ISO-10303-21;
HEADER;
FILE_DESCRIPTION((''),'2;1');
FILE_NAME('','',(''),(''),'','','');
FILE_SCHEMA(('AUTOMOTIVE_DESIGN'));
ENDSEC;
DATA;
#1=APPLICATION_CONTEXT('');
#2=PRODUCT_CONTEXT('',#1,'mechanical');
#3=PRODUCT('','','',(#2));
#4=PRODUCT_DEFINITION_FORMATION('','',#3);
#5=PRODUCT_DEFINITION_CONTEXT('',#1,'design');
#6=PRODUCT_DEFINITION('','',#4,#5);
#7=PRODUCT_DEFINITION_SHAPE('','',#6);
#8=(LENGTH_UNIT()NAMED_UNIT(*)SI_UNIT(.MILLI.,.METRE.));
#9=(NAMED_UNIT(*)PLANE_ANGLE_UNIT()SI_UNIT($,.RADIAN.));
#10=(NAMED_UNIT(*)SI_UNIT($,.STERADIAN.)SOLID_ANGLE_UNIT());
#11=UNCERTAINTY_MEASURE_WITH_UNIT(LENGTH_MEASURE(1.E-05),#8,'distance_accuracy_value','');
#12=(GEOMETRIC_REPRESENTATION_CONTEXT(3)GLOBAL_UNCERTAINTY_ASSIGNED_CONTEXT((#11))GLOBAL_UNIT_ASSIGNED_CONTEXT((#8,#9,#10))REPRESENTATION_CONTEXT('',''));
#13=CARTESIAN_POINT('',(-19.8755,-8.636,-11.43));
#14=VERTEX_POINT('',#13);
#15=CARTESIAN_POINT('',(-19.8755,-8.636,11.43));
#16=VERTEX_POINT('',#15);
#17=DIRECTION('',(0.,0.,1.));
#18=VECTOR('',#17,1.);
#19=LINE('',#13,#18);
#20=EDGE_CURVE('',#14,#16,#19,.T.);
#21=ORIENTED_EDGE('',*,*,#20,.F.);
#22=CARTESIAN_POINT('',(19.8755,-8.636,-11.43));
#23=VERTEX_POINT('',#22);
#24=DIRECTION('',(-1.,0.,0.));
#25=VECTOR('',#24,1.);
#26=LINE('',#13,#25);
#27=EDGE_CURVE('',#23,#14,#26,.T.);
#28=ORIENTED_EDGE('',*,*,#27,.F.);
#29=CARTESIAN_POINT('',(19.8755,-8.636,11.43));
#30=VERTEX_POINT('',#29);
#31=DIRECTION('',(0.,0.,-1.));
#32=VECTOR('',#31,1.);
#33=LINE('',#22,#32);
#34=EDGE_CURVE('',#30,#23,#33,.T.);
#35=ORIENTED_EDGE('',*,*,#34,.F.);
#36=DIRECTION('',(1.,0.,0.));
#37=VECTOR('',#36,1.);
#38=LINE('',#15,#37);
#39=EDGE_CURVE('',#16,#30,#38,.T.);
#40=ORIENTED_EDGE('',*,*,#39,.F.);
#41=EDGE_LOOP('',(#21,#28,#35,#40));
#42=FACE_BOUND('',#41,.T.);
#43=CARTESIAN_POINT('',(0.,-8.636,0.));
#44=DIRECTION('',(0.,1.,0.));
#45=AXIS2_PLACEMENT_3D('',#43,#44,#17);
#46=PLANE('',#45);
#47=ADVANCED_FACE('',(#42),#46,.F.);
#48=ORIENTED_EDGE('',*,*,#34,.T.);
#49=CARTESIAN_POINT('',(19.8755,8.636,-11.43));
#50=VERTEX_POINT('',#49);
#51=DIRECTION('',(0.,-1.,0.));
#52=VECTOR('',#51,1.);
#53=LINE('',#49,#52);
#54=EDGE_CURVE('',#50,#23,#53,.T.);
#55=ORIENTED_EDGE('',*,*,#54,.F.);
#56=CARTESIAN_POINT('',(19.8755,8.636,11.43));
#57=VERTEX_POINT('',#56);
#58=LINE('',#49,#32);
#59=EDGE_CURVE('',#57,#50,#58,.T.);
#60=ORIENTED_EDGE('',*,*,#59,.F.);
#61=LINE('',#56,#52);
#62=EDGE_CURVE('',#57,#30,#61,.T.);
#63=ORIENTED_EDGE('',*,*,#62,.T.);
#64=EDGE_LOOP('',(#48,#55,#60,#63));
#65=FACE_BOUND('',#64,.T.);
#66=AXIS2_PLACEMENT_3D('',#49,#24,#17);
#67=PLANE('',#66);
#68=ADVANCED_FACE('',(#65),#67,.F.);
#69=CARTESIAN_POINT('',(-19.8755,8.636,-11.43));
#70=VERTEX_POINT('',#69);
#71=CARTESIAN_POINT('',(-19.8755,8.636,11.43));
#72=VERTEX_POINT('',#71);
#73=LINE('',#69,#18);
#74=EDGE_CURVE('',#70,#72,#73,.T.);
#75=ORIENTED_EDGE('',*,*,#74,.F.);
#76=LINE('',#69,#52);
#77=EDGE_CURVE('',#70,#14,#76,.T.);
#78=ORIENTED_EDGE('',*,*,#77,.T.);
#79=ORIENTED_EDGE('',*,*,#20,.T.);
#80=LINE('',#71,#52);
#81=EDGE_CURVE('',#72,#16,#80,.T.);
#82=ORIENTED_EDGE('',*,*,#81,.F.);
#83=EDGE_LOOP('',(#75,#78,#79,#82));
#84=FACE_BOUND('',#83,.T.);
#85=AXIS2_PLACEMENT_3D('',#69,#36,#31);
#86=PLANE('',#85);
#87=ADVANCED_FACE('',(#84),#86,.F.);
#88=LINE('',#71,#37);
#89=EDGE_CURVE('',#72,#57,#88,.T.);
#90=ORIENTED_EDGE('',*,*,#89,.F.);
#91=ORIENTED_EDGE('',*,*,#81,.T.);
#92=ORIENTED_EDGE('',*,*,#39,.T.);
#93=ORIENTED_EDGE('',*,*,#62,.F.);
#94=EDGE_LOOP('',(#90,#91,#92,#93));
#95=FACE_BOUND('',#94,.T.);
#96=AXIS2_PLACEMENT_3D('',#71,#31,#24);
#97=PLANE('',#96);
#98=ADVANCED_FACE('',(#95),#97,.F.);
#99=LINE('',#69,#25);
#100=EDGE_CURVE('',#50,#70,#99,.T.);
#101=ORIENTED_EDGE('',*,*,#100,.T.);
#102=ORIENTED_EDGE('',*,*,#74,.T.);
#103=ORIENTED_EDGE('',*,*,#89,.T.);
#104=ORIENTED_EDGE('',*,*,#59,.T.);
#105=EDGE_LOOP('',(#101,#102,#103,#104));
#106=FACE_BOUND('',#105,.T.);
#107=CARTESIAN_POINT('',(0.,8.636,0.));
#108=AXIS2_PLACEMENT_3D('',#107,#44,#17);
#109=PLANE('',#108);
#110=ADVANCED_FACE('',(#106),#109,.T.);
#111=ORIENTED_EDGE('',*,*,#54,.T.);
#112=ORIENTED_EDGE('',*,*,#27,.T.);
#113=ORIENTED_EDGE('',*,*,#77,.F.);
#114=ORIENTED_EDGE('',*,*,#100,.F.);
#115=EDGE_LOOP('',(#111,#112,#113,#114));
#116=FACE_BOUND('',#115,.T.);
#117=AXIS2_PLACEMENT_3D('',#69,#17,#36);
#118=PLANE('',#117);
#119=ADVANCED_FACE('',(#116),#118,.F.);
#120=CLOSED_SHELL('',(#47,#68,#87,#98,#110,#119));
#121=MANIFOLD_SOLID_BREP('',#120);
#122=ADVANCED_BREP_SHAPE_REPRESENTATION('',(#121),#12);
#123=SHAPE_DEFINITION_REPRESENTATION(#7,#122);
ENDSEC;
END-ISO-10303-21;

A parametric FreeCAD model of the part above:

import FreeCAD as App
import Part
import Sketcher
from FreeCAD import Vector
Q = App.Units.Quantity

doc = App.newDocument("Part")
body = doc.addObject("PartDesign::Body", "Body")

sketch1 = body.newObject("Sketcher::SketchObject", "Sketch")
sketch1.AttachmentSupport = (doc.getObject("XZ_Plane"), [""])
sketch1.MapMode = "FlatFace"
sketch1.addGeometry([
    Part.LineSegment(Vector(-20, -11, 0), Vector(-20, 11, 0)),
    Part.LineSegment(Vector(-20, 11, 0), Vector(20, 11, 0)),
    Part.LineSegment(Vector(20, 11, 0), Vector(20, -11, 0)),
    Part.LineSegment(Vector(20, -11, 0), Vector(-20, -11, 0)),
], False)
sketch1.addConstraint([
    Sketcher.Constraint("Coincident", 0, 2, 1, 1),
    Sketcher.Constraint("Coincident", 1, 2, 2, 1),
    Sketcher.Constraint("Coincident", 2, 2, 3, 1),
    Sketcher.Constraint("Coincident", 3, 2, 0, 1),
    Sketcher.Constraint("Vertical", 0),
    Sketcher.Constraint("Horizontal", 1),
    Sketcher.Constraint("Vertical", 2),
    Sketcher.Constraint("Horizontal", 3),
    Sketcher.Constraint("Symmetric", 0, 2, 2, 2, -1, 1),
    Sketcher.Constraint("DistanceY", 0, 1, 0, 2, Q("0.9 in")),
    Sketcher.Constraint("DistanceX", 1, 1, 1, 2, Q("1.565 in")),
])
pad1 = body.newObject("PartDesign::Pad", "Pad")
pad1.Profile = sketch1
pad1.Length = Q("0.68 in")
pad1.Midplane = True

doc.recompute()
